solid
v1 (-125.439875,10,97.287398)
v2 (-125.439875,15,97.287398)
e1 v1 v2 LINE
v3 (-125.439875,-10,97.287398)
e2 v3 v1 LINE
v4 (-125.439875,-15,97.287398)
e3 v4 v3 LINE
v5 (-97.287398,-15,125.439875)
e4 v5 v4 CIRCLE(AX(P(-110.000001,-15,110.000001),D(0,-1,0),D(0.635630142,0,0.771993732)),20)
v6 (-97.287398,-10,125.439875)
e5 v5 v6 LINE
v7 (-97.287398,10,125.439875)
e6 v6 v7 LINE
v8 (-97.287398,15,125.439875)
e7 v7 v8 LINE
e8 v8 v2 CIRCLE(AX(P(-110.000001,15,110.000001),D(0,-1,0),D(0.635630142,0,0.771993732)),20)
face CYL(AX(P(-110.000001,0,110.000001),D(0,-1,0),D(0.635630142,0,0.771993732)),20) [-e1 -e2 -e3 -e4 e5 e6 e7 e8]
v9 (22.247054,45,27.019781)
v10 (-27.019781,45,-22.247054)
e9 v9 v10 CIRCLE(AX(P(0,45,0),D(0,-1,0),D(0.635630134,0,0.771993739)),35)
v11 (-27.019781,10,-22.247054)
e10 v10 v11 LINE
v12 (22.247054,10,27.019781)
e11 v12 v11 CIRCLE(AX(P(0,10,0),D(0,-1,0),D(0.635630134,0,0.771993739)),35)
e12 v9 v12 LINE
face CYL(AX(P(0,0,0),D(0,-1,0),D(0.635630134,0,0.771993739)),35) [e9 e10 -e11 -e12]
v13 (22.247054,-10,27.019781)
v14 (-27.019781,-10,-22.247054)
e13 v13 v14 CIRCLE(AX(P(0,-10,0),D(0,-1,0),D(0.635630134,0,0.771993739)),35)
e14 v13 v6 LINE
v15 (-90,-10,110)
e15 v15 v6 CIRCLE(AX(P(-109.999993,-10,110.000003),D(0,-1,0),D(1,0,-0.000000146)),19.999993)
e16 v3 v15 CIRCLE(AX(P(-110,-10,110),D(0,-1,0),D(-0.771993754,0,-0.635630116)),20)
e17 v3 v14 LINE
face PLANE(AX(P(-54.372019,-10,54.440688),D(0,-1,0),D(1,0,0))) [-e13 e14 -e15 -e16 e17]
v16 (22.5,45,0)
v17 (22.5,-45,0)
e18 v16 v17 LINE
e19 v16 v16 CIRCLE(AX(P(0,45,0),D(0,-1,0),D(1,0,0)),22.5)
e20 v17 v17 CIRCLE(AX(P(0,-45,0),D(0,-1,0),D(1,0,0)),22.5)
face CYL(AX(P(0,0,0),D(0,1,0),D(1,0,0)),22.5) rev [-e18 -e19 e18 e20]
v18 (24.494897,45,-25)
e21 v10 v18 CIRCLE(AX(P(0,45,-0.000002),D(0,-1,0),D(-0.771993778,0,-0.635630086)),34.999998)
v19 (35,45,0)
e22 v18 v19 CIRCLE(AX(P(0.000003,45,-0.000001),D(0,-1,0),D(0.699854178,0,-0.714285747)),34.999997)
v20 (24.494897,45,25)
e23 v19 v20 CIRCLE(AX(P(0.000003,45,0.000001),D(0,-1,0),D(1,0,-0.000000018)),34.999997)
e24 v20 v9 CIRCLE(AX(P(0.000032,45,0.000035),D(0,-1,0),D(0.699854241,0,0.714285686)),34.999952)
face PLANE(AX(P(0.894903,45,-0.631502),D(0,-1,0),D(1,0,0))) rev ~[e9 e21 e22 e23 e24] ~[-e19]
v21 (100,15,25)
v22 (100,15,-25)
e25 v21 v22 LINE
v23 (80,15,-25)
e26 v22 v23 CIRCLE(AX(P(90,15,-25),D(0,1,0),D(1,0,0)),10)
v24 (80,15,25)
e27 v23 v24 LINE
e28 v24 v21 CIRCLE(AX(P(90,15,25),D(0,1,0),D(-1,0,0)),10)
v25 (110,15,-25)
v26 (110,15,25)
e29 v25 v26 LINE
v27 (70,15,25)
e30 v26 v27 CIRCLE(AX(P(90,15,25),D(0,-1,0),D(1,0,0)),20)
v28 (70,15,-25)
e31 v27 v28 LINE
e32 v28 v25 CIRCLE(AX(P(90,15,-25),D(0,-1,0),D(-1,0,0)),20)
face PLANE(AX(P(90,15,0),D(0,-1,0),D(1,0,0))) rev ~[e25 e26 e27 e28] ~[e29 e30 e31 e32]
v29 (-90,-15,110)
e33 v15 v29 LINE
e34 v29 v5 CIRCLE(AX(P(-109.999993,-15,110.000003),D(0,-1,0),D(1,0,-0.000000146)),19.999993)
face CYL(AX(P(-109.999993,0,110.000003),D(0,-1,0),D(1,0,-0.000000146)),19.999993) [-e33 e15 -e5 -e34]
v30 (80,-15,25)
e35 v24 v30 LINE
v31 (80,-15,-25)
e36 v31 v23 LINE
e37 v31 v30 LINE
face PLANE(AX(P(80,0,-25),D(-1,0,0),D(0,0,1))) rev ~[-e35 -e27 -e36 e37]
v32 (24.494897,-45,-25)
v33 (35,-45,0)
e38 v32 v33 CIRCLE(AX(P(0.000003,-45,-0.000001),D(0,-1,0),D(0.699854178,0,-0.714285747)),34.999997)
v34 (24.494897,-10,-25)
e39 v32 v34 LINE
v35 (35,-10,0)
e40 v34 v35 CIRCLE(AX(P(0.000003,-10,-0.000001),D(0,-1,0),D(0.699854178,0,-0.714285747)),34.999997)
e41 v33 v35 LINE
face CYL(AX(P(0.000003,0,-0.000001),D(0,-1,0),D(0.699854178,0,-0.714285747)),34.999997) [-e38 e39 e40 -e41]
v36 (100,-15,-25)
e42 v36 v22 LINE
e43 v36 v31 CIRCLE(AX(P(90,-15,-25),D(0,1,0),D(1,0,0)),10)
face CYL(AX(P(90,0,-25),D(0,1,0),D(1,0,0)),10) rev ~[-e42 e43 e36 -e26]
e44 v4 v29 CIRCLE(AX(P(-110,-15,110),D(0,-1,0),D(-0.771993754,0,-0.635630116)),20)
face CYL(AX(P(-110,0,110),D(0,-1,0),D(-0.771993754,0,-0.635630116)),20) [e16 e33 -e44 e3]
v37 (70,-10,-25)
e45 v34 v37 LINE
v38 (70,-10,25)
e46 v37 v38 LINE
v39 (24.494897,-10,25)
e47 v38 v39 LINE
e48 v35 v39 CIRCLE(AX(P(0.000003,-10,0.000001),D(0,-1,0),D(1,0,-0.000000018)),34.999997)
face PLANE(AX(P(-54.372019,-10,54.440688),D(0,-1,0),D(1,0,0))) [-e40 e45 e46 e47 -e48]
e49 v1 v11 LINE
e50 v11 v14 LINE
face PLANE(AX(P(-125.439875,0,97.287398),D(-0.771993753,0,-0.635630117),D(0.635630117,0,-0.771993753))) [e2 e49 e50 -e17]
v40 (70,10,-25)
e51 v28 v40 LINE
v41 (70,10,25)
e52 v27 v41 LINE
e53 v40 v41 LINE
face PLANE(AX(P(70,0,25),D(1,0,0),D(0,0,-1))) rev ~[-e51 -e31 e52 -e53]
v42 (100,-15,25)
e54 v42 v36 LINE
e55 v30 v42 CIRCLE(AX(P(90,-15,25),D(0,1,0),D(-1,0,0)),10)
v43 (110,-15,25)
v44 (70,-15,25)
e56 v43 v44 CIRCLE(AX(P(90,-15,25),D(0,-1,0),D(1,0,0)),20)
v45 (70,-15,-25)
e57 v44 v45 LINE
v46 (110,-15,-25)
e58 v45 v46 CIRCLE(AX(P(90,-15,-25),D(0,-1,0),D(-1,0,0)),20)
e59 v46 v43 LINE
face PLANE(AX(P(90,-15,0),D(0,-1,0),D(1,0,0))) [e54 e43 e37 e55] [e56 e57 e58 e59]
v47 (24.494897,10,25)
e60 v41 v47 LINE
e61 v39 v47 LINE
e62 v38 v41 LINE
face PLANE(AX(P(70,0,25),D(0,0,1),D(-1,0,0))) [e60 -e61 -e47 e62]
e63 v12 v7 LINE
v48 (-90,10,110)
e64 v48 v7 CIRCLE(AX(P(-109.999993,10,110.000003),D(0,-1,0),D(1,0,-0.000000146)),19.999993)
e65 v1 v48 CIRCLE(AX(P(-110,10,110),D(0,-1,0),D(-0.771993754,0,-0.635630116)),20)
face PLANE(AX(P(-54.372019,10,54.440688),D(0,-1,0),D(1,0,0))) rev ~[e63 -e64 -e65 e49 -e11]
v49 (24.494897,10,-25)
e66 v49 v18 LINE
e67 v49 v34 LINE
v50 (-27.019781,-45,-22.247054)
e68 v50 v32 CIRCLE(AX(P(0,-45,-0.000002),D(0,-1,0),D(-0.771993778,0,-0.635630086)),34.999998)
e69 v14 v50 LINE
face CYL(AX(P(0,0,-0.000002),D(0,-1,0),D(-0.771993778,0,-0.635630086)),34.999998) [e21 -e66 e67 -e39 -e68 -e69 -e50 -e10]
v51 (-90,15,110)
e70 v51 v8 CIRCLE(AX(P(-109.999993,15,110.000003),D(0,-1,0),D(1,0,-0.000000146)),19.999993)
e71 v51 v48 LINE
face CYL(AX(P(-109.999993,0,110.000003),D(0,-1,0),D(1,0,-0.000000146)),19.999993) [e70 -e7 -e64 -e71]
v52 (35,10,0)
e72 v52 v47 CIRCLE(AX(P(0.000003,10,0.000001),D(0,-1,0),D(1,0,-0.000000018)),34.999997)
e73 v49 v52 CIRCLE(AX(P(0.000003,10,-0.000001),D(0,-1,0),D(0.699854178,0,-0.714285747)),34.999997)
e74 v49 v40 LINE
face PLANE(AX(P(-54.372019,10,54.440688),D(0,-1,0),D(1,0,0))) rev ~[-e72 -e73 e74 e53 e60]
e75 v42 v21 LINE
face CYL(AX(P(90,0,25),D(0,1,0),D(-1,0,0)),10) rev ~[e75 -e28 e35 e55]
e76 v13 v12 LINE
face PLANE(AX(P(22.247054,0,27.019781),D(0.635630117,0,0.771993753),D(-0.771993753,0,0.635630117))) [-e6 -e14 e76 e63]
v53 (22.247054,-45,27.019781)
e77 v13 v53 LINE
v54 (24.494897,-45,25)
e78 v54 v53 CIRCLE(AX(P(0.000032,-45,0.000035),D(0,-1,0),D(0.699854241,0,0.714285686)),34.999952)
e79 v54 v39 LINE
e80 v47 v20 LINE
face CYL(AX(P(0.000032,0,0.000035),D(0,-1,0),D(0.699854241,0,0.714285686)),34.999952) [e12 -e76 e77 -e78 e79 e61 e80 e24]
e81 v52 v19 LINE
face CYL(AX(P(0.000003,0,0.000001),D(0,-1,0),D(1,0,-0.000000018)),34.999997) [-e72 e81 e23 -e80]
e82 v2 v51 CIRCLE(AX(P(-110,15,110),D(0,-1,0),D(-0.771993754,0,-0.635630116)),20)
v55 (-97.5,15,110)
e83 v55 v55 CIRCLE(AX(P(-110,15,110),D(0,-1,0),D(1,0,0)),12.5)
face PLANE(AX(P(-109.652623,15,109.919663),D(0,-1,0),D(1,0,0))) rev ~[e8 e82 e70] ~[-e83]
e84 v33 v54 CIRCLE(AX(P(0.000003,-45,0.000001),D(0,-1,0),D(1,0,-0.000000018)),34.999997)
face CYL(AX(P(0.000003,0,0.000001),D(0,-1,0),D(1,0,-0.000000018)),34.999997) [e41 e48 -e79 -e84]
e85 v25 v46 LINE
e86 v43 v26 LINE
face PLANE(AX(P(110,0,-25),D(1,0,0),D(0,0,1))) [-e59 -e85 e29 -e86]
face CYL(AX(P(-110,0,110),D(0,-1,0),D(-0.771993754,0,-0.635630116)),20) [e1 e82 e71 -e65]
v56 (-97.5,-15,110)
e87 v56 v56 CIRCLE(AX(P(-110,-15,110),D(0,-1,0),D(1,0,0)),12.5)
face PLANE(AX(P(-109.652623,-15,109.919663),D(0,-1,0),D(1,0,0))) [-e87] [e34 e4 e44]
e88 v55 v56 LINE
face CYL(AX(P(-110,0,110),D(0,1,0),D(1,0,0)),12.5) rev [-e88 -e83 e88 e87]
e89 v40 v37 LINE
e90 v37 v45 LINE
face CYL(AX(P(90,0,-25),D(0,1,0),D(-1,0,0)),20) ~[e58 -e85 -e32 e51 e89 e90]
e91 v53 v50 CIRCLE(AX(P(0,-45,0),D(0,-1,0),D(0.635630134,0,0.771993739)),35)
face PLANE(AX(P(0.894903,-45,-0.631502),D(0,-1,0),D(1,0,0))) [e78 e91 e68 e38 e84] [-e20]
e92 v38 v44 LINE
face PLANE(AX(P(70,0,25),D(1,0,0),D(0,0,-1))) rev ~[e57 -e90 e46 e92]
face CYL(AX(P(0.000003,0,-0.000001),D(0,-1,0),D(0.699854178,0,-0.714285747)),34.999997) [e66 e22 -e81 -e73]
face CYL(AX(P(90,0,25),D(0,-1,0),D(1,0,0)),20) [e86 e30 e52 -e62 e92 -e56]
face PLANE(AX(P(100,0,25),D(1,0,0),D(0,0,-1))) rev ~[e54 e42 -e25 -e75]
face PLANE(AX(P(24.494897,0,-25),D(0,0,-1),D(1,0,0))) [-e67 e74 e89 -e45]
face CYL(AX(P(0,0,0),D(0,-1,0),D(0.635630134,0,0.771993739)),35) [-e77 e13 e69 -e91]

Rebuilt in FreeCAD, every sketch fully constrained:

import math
import FreeCAD as App
import Part
import Sketcher

doc = App.newDocument("Part")
body = doc.addObject("PartDesign::Body", "Body")

# Sketch on XZ plane
sketch1 = doc.addObject("Sketcher::SketchObject", "Sketch")
body.addObject(sketch1)
sketch1.AttachmentSupport = (doc.XZ_Plane, [""])
sketch1.MapMode = "FlatFace"
sketch1.addGeometry([
    Part.LineSegment(App.Vector(-125.439875, 97.287398, 0), App.Vector(-27.019781, -22.247054, 0)),  # 0
    Part.ArcOfCircle(Part.Circle(App.Vector(0, -0.000002, 0), App.Vector(0, 0, 1), 34.999998), math.radians(-140.533268), math.radians(-45.584689)),  # 1
    Part.LineSegment(App.Vector(24.494897, -25, 0), App.Vector(70, -25, 0)),  # 2
    Part.ArcOfCircle(Part.Circle(App.Vector(90, -25, 0), App.Vector(0, 0, 1), 20), math.radians(180), math.radians(360)),  # 3
    Part.LineSegment(App.Vector(110, -25, 0), App.Vector(110, 25, 0)),  # 4
    Part.ArcOfCircle(Part.Circle(App.Vector(90, 25, 0), App.Vector(0, 0, 1), 20), math.radians(0), math.radians(180)),  # 5
    Part.LineSegment(App.Vector(70, 25, 0), App.Vector(24.494897, 25, 0)),  # 6
    Part.ArcOfCircle(Part.Circle(App.Vector(0.000032, 0.000035, 0), App.Vector(0, 0, 1), 34.999952), math.radians(45.584689), math.radians(50.533269)),  # 7
    Part.LineSegment(App.Vector(22.247054, 27.019781, 0), App.Vector(-97.287398, 125.439875, 0)),  # 8
    Part.ArcOfCircle(Part.Circle(App.Vector(-110.000001, 110.000001, 0), App.Vector(0, 0, 1), 20), math.radians(50.533263), math.radians(219.466737)),  # 9
    Part.Circle(App.Vector(0, 0, 0), App.Vector(0, 0, 1), 22.5),  # 10
    Part.LineSegment(App.Vector(80, -25, 0), App.Vector(80, 25, 0)),  # 11
    Part.ArcOfCircle(Part.Circle(App.Vector(90, 25, 0), App.Vector(0, 0, 1), 10), math.radians(0), math.radians(180)),  # 12
    Part.LineSegment(App.Vector(100, 25, 0), App.Vector(100, -25, 0)),  # 13
    Part.ArcOfCircle(Part.Circle(App.Vector(90, -25, 0), App.Vector(0, 0, 1), 10), math.radians(180), math.radians(360)),  # 14
    Part.Circle(App.Vector(-110, 110, 0), App.Vector(0, 0, 1), 12.5),  # 15
], False)
sketch1.addConstraint([
    Sketcher.Constraint("Tangent", 0, 2, 1, 1),
    Sketcher.Constraint("Coincident", 1, 2, 2, 1),
    Sketcher.Constraint("Coincident", 2, 2, 3, 1),
    Sketcher.Constraint("Tangent", 3, 2, 4, 1),
    Sketcher.Constraint("Tangent", 4, 2, 5, 1),
    Sketcher.Constraint("Coincident", 5, 2, 6, 1),
    Sketcher.Constraint("Coincident", 6, 2, 7, 1),
    Sketcher.Constraint("Tangent", 7, 2, 8, 1),
    Sketcher.Constraint("Tangent", 8, 2, 9, 1),
    Sketcher.Constraint("Tangent", 9, 2, 0, 1),
    Sketcher.Constraint("Tangent", 11, 2, 12, 2),
    Sketcher.Constraint("Tangent", 12, 1, 13, 1),
    Sketcher.Constraint("Tangent", 13, 2, 14, 2),
    Sketcher.Constraint("Tangent", 14, 1, 11, 1),
    Sketcher.Constraint("Horizontal", 2),
    Sketcher.Constraint("Vertical", 4),
    Sketcher.Constraint("Horizontal", 6),
    Sketcher.Constraint("Vertical", 11),
    Sketcher.Constraint("Vertical", 13),
    Sketcher.Constraint("Coincident", 1, 3, -1, 1),
    Sketcher.Constraint("Coincident", 10, 3, -1, 1),
    Sketcher.Constraint("Coincident", 12, 3, 5, 3),
    Sketcher.Constraint("Coincident", 14, 3, 3, 3),
    Sketcher.Constraint("Coincident", 15, 3, 9, 3),
    Sketcher.Constraint("Equal", 5, 9),
    Sketcher.Constraint("Symmetric", 1, 2, 6, 2, -1),
    Sketcher.Constraint("Horizontal", 14, 3, 1, 2),
    Sketcher.Constraint("Horizontal", 4, 2, 5, 2),
    Sketcher.Constraint("Equal", 0, 8),
    Sketcher.Constraint("Diameter", 10, 45.0),
    Sketcher.Constraint("Diameter", 15, 25.0),
    Sketcher.Constraint("Radius", 1, 34.999998),
    Sketcher.Constraint("Radius", 3, 20.0),
    Sketcher.Constraint("Radius", 12, 10.0),
    Sketcher.Constraint("DistanceY", 4, 1, 4, 2, 50.0),
    Sketcher.Constraint("DistanceX", -1, 1, 3, 3, 90.0),
    Sketcher.Constraint("DistanceX", 9, 3, -1, 1, 110.000001),
    Sketcher.Constraint("DistanceY", -1, 1, 9, 3, 110.000001),
    Sketcher.Constraint("Radius", 7, 34.999952),
])
pad1 = doc.addObject("PartDesign::Pad", "Pad")
body.addObject(pad1)
pad1.Profile = sketch1
pad1.Length = 20
pad1.Midplane = True

# Sketch on XZ plane
sketch2 = doc.addObject("Sketcher::SketchObject", "Sketch001")
body.addObject(sketch2)
sketch2.AttachmentSupport = (doc.XZ_Plane, [""])
sketch2.MapMode = "FlatFace"
sketch2.addGeometry([
    Part.ArcOfCircle(Part.Circle(App.Vector(90, 25, 0), App.Vector(0, 0, 1), 20), math.radians(0), math.radians(180)),  # 0
    Part.LineSegment(App.Vector(70, 25, 0), App.Vector(70, -25, 0)),  # 1
    Part.ArcOfCircle(Part.Circle(App.Vector(90, -25, 0), App.Vector(0, 0, 1), 20), math.radians(180), math.radians(360)),  # 2
    Part.LineSegment(App.Vector(110, -25, 0), App.Vector(110, 25, 0)),  # 3
    Part.LineSegment(App.Vector(80, -25, 0), App.Vector(80, 25, 0)),  # 4
    Part.ArcOfCircle(Part.Circle(App.Vector(90, 25, 0), App.Vector(0, 0, 1), 10), math.radians(0), math.radians(180)),  # 5
    Part.LineSegment(App.Vector(100, 25, 0), App.Vector(100, -25, 0)),  # 6
    Part.ArcOfCircle(Part.Circle(App.Vector(90, -25, 0), App.Vector(0, 0, 1), 10), math.radians(180), math.radians(360)),  # 7
    Part.ArcOfCircle(Part.Circle(App.Vector(-110, 110, 0), App.Vector(0, 0, 1), 20), math.radians(-140.533265), math.radians(-0.000001)),  # 8
    Part.ArcOfCircle(Part.Circle(App.Vector(-109.999993, 110.000003, 0), App.Vector(0, 0, 1), 19.999993), math.radians(-0.000008), math.radians(50.533276)),  # 9
    Part.ArcOfCircle(Part.Circle(App.Vector(-110.000001, 110.000001, 0), App.Vector(0, 0, 1), 20), math.radians(50.533263), math.radians(219.466737)),  # 10
    Part.Circle(App.Vector(-110, 110, 0), App.Vector(0, 0, 1), 12.5),  # 11
], False)
sketch2.addConstraint([
    Sketcher.Constraint("Tangent", 0, 2, 1, 1),
    Sketcher.Constraint("Tangent", 1, 2, 2, 1),
    Sketcher.Constraint("Tangent", 2, 2, 3, 1),
    Sketcher.Constraint("Tangent", 3, 2, 0, 1),
    Sketcher.Constraint("Tangent", 4, 2, 5, 2),
    Sketcher.Constraint("Tangent", 5, 1, 6, 1),
    Sketcher.Constraint("Tangent", 6, 2, 7, 2),
    Sketcher.Constraint("Tangent", 7, 1, 4, 1),
    Sketcher.Constraint("Tangent", 8, 2, 9, 1),
    Sketcher.Constraint("Tangent", 9, 2, 10, 1),
    Sketcher.Constraint("Tangent", 10, 2, 8, 1),
    Sketcher.Constraint("Vertical", 1),
    Sketcher.Constraint("Vertical", 3),
    Sketcher.Constraint("Vertical", 4),
    Sketcher.Constraint("Vertical", 6),
    Sketcher.Constraint("Coincident", 5, 3, 0, 3),
    Sketcher.Constraint("Coincident", 11, 3, 8, 3),
    Sketcher.Constraint("Equal", 2, 8),
    Sketcher.Constraint("Horizontal", 7, 3, 1, 2),
    Sketcher.Constraint("Horizontal", 11, 3, 8, 2),
    Sketcher.Constraint("Diameter", 11, 25.0),
    Sketcher.Constraint("Radius", 0, 20.0),
    Sketcher.Constraint("Radius", 5, 10.0),
    Sketcher.Constraint("DistanceY", 1, 2, 1, 1, 50.0),
    Sketcher.Constraint("DistanceX", -1, 1, 0, 3, 90.0),
    Sketcher.Constraint("DistanceY", -1, 1, 0, 3, 25.0),
    Sketcher.Constraint("DistanceX", 8, 3, -1, 1, 110.0),
    Sketcher.Constraint("DistanceY", -1, 1, 8, 3, 110.0),
    Sketcher.Constraint("DistanceY", -1, 1, 10, 2, 97.287398),
    Sketcher.Constraint("DistanceX", 8, 3, 9, 2, 12.712602),
])
pad2 = doc.addObject("PartDesign::Pad", "Pad001")
body.addObject(pad2)
pad2.Profile = sketch2
pad2.Length = 30
pad2.Midplane = True

# Sketch on XZ plane
sketch3 = doc.addObject("Sketcher::SketchObject", "Sketch002")
body.addObject(sketch3)
sketch3.AttachmentSupport = (doc.XZ_Plane, [""])
sketch3.MapMode = "FlatFace"
sketch3.addGeometry([
    Part.ArcOfCircle(Part.Circle(App.Vector(0.000032, 0.000035, 0), App.Vector(0, 0, 1), 34.999952), math.radians(45.584689), math.radians(50.533269)),  # 0
    Part.ArcOfCircle(Part.Circle(App.Vector(0, 0, 0), App.Vector(0, 0, 1), 35), math.radians(50.533264), math.radians(219.466736)),  # 1
    Part.ArcOfCircle(Part.Circle(App.Vector(0, -0.000002, 0), App.Vector(0, 0, 1), 34.999998), math.radians(-140.533268), math.radians(-45.584689)),  # 2
    Part.ArcOfCircle(Part.Circle(App.Vector(0.000003, -0.000001, 0), App.Vector(0, 0, 1), 34.999997), math.radians(-45.584694), math.radians(0.000001)),  # 3
    Part.ArcOfCircle(Part.Circle(App.Vector(0.000003, 0.000001, 0), App.Vector(0, 0, 1), 34.999997), math.radians(-0.000001), math.radians(45.584694)),  # 4
    Part.Circle(App.Vector(0, 0, 0), App.Vector(0, 0, 1), 22.5),  # 5
], False)
sketch3.addConstraint([
    Sketcher.Constraint("Coincident", 0, 2, 1, 1),
    Sketcher.Constraint("Coincident", 1, 2, 2, 1),
    Sketcher.Constraint("Coincident", 2, 2, 3, 1),
    Sketcher.Constraint("Coincident", 3, 2, 4, 1),
    Sketcher.Constraint("Coincident", 4, 2, 0, 1),
    Sketcher.Constraint("Coincident", 1, 3, -1, 1),
    Sketcher.Constraint("Coincident", 2, 3, -1, 1),
    Sketcher.Constraint("Coincident", 3, 3, -1, 1),
    Sketcher.Constraint("Coincident", 4, 3, -1, 1),
    Sketcher.Constraint("Coincident", 5, 3, -1, 1),
    Sketcher.Constraint("PointOnObject", 3, 2, -1),
    Sketcher.Constraint("Diameter", 5, 45.0),
    Sketcher.Constraint("Radius", 1, 35.0),
    Sketcher.Constraint("DistanceY", 2, 2, -1, 1, 25.0),
    Sketcher.Constraint("DistanceY", -1, 1, 4, 2, 25.0),
    Sketcher.Constraint("Radius", 0, 34.999952),
    Sketcher.Constraint("DistanceY", -1, 1, 0, 2, 27.019781),
    Sketcher.Constraint("DistanceX", 1, 2, -1, 1, 27.019781),
])
pad3 = doc.addObject("PartDesign::Pad", "Pad002")
body.addObject(pad3)
pad3.Profile = sketch3
pad3.Length = 90
pad3.Midplane = True

doc.recompute()
